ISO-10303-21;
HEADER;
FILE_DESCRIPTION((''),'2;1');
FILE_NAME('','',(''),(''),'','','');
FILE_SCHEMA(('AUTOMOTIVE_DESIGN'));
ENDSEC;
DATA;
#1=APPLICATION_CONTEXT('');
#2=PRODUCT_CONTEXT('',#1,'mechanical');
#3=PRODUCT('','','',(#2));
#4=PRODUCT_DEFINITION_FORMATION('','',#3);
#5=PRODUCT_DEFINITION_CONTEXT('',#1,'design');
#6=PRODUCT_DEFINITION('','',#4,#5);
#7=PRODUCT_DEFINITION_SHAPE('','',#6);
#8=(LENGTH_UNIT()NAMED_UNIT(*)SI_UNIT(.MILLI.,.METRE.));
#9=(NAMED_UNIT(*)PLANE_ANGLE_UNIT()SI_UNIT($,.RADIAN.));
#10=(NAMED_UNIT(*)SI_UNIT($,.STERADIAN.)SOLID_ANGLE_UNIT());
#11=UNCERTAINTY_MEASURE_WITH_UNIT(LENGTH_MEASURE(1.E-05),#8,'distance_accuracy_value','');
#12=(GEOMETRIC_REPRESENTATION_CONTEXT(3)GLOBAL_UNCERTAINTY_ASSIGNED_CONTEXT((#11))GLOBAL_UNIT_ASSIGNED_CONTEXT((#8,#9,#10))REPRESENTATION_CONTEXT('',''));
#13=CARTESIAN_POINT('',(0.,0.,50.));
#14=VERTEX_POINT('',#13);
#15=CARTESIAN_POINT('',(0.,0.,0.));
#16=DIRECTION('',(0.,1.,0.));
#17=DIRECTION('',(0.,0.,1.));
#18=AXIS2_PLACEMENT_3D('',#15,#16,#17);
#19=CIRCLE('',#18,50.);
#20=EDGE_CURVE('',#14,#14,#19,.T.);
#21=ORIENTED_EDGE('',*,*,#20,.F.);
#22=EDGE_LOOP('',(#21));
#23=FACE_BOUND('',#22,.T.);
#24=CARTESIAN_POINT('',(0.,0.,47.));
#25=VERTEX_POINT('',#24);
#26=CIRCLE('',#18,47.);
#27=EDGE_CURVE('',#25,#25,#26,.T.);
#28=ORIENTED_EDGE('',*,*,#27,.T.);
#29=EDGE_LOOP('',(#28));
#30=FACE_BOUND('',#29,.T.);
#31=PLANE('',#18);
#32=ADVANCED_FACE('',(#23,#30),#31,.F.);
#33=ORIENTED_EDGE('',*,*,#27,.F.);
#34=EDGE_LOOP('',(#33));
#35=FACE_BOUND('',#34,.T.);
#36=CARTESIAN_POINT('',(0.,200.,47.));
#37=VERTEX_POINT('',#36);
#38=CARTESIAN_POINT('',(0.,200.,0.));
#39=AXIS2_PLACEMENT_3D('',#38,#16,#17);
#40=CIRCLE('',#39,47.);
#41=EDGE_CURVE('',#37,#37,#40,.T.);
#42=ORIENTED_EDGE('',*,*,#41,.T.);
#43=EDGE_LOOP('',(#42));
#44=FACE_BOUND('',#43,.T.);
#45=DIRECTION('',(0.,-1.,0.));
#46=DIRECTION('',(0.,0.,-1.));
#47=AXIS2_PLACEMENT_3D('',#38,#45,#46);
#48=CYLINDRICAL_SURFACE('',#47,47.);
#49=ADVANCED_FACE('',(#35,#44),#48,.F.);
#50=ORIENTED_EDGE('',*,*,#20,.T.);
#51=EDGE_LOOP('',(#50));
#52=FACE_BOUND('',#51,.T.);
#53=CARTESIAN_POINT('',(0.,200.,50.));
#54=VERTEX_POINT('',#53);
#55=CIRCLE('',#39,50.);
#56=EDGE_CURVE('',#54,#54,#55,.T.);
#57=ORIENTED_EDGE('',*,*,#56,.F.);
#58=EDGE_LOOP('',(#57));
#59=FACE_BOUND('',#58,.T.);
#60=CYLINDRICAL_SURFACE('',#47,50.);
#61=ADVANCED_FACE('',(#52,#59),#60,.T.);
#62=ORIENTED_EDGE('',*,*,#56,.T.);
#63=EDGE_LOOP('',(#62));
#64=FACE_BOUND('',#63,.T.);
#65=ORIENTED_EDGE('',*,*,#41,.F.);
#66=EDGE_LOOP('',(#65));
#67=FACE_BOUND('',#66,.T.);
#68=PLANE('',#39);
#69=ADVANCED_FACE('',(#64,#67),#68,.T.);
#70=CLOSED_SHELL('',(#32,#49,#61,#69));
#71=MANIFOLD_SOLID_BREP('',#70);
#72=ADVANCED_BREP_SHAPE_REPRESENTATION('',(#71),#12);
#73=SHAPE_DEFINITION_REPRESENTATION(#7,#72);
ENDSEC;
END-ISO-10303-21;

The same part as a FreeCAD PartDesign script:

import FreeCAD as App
import Part
import Sketcher

V = App.Vector
Q = App.Units.Quantity


def faces_at(feature, points):
    """Names of the faces that lie closest to the given points."""
    faces = feature.Shape.Faces
    near = lambda p: min(range(len(faces)), key=lambda i: faces[i].distToShape(Part.Vertex(*p))[0])
    return sorted({f"Face{near(p) + 1}" for p in points})

doc = App.newDocument("Part")
params = doc.addObject("Spreadsheet::Sheet", "Params")
for row, (alias, value) in enumerate([
    ("sketch1_diameter", "100 mm"),
    ("pad1_length", "200 mm"),
    ("thickness_wall", "3 mm"),
], start=1):
    params.set(f"A{row}", alias)
    params.set(f"B{row}", "=" + value)
    params.setAlias(f"B{row}", alias)

body = doc.addObject("PartDesign::Body", "Body")

# Sketch on XZ plane
sketch1 = body.newObject("Sketcher::SketchObject", "Sketch")
sketch1.AttachmentSupport = (doc.getObject("XZ_Plane"), [""])
sketch1.MapMode = "FlatFace"
sketch1.addGeometry(Part.Circle(V(0, 0, 0), V(0, 0, 1), 50), False)
sketch1.addConstraint([
    Sketcher.Constraint("Coincident", 0, 3, -1, 1),
    Sketcher.Constraint("Diameter", 0, Q("100 mm")),
])
sketch1.setExpression("Constraints[1]", "Params.sketch1_diameter")
pad1 = body.newObject("PartDesign::Pad", "Pad")
pad1.Profile = sketch1
pad1.setExpression("Length", "Params.pad1_length")
pad1.Reversed = True
doc.recompute()

thickness = body.newObject("PartDesign::Thickness", "Thickness")
thickness.Base = (pad1, faces_at(pad1, [(0, 200, 0), (0, 0, 0)]))
thickness.setExpression("Value", "Params.thickness_wall")
thickness.Reversed = True
thickness.Join = "Intersection"

doc.recompute()
